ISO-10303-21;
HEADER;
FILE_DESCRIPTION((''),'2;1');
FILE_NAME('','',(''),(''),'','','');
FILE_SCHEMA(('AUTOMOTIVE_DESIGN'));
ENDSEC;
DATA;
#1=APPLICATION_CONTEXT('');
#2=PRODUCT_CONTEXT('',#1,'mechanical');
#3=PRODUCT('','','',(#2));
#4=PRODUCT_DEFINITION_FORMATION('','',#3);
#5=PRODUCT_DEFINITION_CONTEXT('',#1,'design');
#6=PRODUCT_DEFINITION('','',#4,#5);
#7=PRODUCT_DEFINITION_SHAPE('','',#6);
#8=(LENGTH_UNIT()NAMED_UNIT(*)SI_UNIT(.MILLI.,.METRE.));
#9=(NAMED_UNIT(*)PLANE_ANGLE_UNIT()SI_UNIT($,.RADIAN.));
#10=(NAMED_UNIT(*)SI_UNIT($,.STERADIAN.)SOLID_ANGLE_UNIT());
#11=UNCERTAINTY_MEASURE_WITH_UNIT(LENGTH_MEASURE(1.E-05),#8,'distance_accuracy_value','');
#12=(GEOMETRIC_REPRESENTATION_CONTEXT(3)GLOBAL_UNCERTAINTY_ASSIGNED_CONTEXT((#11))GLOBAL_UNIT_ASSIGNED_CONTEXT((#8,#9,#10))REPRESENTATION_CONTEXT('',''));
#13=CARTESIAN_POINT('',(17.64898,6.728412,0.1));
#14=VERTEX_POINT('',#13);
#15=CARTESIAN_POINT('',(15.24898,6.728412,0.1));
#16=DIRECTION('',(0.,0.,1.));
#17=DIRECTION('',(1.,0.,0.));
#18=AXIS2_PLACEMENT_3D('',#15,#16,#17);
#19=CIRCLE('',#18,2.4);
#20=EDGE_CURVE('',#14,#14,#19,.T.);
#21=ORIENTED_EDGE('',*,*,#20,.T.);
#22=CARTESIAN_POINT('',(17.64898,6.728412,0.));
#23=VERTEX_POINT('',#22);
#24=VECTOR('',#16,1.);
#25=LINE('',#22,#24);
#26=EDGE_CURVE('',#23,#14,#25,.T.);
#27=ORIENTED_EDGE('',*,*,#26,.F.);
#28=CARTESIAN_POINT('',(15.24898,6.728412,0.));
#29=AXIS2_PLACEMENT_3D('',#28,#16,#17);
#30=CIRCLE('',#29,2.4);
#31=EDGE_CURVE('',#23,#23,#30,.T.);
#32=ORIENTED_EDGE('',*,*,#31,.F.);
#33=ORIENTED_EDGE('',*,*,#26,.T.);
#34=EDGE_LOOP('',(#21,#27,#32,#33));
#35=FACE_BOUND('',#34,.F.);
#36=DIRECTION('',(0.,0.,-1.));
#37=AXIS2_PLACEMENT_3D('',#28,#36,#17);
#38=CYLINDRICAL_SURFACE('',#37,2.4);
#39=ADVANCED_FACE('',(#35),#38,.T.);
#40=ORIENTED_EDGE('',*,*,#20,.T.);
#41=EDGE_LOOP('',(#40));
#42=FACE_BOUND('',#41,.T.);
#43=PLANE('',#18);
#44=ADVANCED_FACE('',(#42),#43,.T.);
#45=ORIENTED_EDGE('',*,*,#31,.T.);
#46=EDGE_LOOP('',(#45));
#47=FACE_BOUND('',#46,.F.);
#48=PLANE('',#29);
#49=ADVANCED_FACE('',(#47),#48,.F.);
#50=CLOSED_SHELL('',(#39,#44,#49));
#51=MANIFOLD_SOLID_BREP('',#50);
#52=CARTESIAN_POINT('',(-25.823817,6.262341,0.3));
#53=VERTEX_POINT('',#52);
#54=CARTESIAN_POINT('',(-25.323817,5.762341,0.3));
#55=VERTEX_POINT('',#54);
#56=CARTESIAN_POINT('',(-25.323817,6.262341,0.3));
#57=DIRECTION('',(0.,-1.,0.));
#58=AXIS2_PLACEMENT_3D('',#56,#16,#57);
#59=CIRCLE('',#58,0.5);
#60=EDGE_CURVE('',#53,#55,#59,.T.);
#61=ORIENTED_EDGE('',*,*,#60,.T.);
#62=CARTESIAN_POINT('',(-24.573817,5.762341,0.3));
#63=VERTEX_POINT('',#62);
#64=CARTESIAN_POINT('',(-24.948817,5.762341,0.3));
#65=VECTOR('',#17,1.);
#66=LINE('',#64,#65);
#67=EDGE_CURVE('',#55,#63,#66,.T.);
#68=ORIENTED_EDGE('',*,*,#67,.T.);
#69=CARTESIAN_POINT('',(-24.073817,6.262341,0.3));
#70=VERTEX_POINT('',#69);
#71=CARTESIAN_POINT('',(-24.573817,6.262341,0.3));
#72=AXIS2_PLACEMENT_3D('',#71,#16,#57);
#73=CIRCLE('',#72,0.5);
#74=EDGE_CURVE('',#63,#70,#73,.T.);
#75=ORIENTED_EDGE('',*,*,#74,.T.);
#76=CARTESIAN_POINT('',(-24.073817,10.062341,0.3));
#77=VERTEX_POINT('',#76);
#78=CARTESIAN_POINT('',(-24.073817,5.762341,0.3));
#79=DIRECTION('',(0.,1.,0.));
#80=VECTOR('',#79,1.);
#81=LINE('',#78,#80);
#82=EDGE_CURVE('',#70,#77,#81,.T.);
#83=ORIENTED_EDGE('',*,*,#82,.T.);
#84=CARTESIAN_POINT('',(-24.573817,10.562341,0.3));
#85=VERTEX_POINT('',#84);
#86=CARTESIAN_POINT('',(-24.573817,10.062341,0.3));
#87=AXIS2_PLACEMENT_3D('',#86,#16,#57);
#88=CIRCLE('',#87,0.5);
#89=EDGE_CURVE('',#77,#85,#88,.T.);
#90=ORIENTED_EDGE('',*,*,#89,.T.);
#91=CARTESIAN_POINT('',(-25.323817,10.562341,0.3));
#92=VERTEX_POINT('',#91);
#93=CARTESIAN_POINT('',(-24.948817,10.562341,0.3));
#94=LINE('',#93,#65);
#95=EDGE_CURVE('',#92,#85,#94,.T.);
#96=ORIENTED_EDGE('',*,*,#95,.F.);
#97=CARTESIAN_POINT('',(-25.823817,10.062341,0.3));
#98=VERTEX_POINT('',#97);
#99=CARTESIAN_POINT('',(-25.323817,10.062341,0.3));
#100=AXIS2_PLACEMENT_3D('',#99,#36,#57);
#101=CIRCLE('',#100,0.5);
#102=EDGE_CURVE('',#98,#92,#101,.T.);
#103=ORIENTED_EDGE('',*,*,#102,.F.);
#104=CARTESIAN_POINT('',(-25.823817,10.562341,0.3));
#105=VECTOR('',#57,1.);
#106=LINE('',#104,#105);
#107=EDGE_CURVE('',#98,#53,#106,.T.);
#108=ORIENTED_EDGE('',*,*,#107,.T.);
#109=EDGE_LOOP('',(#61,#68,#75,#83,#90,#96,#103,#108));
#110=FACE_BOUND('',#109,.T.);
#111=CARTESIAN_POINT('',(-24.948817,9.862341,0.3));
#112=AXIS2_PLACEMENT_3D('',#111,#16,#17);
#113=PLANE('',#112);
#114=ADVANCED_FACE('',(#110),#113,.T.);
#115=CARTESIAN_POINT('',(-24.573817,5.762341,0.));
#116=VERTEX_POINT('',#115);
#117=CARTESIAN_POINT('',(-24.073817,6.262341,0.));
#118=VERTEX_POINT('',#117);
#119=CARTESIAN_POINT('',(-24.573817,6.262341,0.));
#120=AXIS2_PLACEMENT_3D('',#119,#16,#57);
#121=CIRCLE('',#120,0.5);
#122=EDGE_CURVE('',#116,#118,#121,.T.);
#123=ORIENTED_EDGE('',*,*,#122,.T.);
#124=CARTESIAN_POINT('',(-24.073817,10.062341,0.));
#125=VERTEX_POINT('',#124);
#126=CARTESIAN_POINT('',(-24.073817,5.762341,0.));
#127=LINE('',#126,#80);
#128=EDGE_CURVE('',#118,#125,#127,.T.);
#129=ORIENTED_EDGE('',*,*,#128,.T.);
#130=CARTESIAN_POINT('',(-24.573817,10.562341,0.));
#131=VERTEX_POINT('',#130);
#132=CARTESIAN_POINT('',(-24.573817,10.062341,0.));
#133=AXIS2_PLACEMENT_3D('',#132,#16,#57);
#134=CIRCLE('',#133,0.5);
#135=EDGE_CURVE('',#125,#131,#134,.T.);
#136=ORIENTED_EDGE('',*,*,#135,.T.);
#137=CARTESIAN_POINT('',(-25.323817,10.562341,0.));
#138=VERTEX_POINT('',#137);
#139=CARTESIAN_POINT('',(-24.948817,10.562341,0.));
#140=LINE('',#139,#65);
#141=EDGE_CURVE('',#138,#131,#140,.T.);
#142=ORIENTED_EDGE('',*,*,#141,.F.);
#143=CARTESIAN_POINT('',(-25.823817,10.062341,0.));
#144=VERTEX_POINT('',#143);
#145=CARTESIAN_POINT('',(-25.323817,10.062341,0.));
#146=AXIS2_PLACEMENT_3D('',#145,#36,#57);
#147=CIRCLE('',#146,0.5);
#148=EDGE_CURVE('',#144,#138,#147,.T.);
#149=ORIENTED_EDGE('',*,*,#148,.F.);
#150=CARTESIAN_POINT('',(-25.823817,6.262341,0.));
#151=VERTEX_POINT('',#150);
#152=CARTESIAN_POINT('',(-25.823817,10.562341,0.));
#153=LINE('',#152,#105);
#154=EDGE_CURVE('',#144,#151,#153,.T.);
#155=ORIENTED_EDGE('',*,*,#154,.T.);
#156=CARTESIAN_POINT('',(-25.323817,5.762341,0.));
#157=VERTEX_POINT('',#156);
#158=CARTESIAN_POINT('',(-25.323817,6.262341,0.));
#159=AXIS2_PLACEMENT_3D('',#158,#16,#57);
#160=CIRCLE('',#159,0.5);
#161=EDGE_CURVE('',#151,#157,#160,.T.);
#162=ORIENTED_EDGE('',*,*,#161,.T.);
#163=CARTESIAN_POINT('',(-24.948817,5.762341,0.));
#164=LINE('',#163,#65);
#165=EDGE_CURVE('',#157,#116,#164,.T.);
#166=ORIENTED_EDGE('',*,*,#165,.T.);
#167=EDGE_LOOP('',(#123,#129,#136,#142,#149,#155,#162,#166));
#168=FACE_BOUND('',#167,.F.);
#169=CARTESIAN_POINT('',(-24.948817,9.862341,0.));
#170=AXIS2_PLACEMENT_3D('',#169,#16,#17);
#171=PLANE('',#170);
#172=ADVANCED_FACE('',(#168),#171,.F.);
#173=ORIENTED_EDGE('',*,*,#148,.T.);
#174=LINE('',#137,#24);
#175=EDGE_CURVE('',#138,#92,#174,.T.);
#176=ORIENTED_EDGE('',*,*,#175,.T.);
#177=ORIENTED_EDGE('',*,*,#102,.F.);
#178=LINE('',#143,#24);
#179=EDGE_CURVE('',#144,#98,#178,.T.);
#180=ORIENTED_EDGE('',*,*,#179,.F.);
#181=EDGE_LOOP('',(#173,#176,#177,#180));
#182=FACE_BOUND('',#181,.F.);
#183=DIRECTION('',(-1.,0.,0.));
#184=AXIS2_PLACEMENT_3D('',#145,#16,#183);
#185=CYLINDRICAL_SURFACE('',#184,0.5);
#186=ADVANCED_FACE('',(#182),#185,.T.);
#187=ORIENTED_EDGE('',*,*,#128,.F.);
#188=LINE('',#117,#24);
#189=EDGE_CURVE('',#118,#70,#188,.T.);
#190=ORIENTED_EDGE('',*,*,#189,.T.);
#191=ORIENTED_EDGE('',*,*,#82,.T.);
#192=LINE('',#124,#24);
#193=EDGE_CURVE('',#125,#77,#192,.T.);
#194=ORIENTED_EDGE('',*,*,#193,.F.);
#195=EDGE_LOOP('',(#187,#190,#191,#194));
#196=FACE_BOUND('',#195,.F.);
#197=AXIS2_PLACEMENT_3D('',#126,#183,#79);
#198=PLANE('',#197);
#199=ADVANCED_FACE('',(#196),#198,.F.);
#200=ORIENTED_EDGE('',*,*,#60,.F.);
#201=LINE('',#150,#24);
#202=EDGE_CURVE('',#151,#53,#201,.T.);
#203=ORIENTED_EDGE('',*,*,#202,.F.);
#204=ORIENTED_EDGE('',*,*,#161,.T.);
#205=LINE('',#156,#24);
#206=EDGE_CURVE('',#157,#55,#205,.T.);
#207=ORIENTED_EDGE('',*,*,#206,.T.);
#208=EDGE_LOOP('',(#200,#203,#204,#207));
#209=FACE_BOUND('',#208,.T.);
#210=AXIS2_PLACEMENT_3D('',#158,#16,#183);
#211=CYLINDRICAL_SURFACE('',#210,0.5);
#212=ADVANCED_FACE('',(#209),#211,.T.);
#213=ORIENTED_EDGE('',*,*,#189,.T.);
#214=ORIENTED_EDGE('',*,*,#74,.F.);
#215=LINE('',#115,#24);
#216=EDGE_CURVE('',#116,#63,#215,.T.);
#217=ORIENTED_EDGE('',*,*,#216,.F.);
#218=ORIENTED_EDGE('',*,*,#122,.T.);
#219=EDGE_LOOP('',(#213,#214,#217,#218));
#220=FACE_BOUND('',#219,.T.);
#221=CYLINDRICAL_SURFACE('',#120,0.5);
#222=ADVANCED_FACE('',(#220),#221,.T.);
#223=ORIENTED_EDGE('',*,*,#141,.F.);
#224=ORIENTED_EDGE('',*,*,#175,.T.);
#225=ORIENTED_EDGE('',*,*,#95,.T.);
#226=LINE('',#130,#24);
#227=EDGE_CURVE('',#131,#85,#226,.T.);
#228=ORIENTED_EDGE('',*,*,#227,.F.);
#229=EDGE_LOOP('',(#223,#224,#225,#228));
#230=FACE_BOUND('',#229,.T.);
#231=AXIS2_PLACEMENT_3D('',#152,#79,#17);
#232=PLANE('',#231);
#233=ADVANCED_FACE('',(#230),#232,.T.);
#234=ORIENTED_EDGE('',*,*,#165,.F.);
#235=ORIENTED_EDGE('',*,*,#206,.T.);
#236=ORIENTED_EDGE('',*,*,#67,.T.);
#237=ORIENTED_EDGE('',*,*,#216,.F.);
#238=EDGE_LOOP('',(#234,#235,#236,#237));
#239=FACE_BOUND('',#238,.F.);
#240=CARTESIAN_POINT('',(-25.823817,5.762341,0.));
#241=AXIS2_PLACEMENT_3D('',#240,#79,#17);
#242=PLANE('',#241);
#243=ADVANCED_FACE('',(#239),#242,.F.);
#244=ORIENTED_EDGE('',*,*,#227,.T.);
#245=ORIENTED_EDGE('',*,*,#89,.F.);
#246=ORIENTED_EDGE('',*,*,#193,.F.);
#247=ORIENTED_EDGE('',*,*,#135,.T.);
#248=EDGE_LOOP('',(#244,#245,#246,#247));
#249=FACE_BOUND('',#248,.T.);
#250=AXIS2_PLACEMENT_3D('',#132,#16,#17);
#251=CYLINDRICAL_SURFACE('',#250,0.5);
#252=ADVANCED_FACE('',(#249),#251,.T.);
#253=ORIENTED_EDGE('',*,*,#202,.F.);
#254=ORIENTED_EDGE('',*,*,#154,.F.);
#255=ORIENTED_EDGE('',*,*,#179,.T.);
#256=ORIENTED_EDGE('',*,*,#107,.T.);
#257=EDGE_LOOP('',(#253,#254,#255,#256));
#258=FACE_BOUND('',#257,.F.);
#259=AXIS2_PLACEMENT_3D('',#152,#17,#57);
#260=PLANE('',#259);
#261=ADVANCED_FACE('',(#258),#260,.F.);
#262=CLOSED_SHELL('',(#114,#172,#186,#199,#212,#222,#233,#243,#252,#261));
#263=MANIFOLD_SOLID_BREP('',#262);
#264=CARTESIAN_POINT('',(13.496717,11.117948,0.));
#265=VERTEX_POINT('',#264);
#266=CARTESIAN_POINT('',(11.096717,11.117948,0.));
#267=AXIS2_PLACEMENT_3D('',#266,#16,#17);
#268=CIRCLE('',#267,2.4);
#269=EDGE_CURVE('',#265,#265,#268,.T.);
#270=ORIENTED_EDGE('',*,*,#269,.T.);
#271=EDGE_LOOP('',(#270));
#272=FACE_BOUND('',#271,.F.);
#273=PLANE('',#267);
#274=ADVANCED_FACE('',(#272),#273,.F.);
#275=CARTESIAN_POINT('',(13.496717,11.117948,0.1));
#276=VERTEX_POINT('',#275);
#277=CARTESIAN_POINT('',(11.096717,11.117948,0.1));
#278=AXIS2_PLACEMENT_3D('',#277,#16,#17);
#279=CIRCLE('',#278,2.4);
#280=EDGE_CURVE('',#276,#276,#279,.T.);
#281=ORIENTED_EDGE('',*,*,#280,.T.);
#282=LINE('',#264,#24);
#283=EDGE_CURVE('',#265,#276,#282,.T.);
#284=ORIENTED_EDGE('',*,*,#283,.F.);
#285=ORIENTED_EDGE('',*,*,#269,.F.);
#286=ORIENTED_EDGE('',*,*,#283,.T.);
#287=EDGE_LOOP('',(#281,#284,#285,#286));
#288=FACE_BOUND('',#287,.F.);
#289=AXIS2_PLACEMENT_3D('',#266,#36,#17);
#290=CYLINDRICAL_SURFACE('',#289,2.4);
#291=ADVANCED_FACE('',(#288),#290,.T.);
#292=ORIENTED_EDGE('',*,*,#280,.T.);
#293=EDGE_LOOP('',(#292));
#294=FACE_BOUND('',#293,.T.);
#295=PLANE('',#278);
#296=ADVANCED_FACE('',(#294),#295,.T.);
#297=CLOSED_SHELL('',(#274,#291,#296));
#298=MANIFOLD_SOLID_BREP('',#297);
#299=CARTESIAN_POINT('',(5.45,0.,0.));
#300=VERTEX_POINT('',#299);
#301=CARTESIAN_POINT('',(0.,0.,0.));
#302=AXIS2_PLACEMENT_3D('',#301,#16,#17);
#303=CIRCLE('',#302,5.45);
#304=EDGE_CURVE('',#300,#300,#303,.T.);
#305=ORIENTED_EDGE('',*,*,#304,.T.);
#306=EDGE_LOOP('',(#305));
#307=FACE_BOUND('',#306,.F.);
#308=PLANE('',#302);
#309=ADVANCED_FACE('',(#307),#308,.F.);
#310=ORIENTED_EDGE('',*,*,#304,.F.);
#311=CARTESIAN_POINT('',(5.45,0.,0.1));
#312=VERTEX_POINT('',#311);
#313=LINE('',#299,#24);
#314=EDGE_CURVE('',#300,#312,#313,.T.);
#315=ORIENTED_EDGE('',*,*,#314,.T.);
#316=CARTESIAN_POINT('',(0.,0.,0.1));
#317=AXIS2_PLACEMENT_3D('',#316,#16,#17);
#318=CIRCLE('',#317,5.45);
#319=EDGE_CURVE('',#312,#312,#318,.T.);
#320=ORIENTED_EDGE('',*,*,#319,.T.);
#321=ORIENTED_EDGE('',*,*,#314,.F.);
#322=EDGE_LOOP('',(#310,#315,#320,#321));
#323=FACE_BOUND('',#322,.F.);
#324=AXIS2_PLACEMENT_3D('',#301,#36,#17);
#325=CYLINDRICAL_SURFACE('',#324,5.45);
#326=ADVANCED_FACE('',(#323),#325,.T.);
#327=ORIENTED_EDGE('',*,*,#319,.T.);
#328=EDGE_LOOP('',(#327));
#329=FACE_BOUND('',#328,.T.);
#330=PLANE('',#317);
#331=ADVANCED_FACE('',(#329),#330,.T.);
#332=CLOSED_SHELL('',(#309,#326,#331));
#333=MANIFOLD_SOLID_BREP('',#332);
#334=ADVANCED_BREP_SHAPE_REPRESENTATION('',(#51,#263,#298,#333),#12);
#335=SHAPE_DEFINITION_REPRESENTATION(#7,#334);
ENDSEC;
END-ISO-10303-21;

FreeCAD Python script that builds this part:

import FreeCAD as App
import Part
import Sketcher

V = App.Vector
Q = App.Units.Quantity


def edges_at(feature, points):
    """Names of the edges that pass closest to the given points."""
    edges = feature.Shape.Edges
    near = lambda p: min(range(len(edges)), key=lambda i: edges[i].distToShape(Part.Vertex(*p))[0])
    return sorted({f"Edge{near(p) + 1}" for p in points})


def add_polygon(sketch, points):
    """Adds a closed chain of lines whose ends are joined by coincident constraints."""
    first, n = sketch.GeometryCount, len(points)
    for a, b in zip(points, points[1:] + points[:1]):
        sketch.addGeometry(Part.LineSegment(App.Vector(*a, 0), App.Vector(*b, 0)), False)
    for i in range(n):
        sketch.addConstraint(Sketcher.Constraint("Coincident", first + i, 2, first + (i + 1) % n, 1))

doc = App.newDocument("Part")
params = doc.addObject("Spreadsheet::Sheet", "Params")
for row, (alias, value) in enumerate([
    ("sketch1_diameter", "10.9 mm"),
    ("pad1_length", "0.1 mm"),
    ("sketch2_diameter", "4.8 mm"),
    ("pad2_length", "0.1 mm"),
    ("sketch3_height", "4.8 mm"),
    ("sketch3_width", "1.75 mm"),
    ("pad3_length", "0.3 mm"),
    ("fillet_radius", "0.5 mm"),
], start=1):
    params.set(f"A{row}", alias)
    params.set(f"B{row}", "=" + value)
    params.setAlias(f"B{row}", alias)

body = doc.addObject("PartDesign::Body", "Body")

# Sketch on XY plane
sketch1 = doc.addObject("Sketcher::SketchObject", "Sketch")
body.addObject(sketch1)
sketch1.AttachmentSupport = (doc.XY_Plane, [""])
sketch1.MapMode = "FlatFace"
sketch1.addGeometry(Part.Circle(V(0, 0, 0), V(0, 0, 1), 5), False)
sketch1.addConstraint(Sketcher.Constraint("Coincident", 0, 3, -1, 1))
sketch1.addConstraint(Sketcher.Constraint("Diameter", 0, Q("10.9 mm")))
sketch1.setExpression("Constraints[1]", "Params.sketch1_diameter")
pad1 = doc.addObject("PartDesign::Pad", "Pad")
body.addObject(pad1)
pad1.Profile = sketch1
pad1.setExpression("Length", "Params.pad1_length")
body2 = doc.addObject("PartDesign::Body", "Body001")
body2.AllowCompound = True

# Sketch on XY plane
sketch2 = doc.addObject("Sketcher::SketchObject", "Sketch001")
body2.addObject(sketch2)
sketch2.AttachmentSupport = (doc.getObject("XY_Plane001"), [""])
sketch2.MapMode = "FlatFace"
sketch2.addGeometry(Part.Circle(V(11.1, 11.1, 0), V(0, 0, 1), 2.4), False)
sketch2.addGeometry(Part.Circle(V(15.2, 6.7, 0), V(0, 0, 1), 2.4), False)
sketch2.addConstraint(Sketcher.Constraint("Equal", 0, 1))
sketch2.addConstraint(Sketcher.Constraint("Diameter", 0, Q("4.8 mm")))
sketch2.addConstraint(Sketcher.Constraint("DistanceX", -1, 1, 1, 3, Q("15.24898 mm")))
sketch2.addConstraint(Sketcher.Constraint("DistanceY", -1, 1, 1, 3, Q("6.728412 mm")))
sketch2.addConstraint(Sketcher.Constraint("DistanceX", -1, 1, 0, 3, Q("11.096717 mm")))
sketch2.addConstraint(Sketcher.Constraint("DistanceY", -1, 1, 0, 3, Q("11.117948 mm")))
sketch2.setExpression("Constraints[1]", "Params.sketch2_diameter")
pad2 = doc.addObject("PartDesign::Pad", "Pad001")
body2.addObject(pad2)
pad2.Profile = sketch2
pad2.setExpression("Length", "Params.pad2_length")
body3 = doc.addObject("PartDesign::Body", "Body002")

# Sketch on XY plane
sketch3 = doc.addObject("Sketcher::SketchObject", "Sketch002")
body3.addObject(sketch3)
sketch3.AttachmentSupport = (doc.getObject("XY_Plane002"), [""])
sketch3.MapMode = "FlatFace"
add_polygon(sketch3, [(-25.8, 10.6), (-25.8, 5.8), (-24.1, 5.8), (-24.1, 10.6)])  # lines 0-3
sketch3.addConstraint(Sketcher.Constraint("Vertical", 0))
sketch3.addConstraint(Sketcher.Constraint("Horizontal", 1))
sketch3.addConstraint(Sketcher.Constraint("Vertical", 2))
sketch3.addConstraint(Sketcher.Constraint("Horizontal", 3))
sketch3.addConstraint(Sketcher.Constraint("DistanceY", 0, 2, 0, 1, Q("4.8 mm")))
sketch3.addConstraint(Sketcher.Constraint("DistanceX", 1, 1, 1, 2, Q("1.75 mm")))
sketch3.addConstraint(Sketcher.Constraint("DistanceY", -1, 1, 0, 2, Q("5.762341 mm")))
sketch3.addConstraint(Sketcher.Constraint("DistanceX", 0, 2, -1, 1, Q("25.823817 mm")))
sketch3.setExpression("Constraints[8]", "Params.sketch3_height")
sketch3.setExpression("Constraints[9]", "Params.sketch3_width")
pad3 = doc.addObject("PartDesign::Pad", "Pad002")
body3.addObject(pad3)
pad3.Profile = sketch3
pad3.setExpression("Length", "Params.pad3_length")
doc.recompute()

fillet = doc.addObject("PartDesign::Fillet", "Fillet")
body3.addObject(fillet)
fillet.Base = (pad3, edges_at(pad3, [
    (-24.074, 10.562, 0.15),
    (-25.824, 10.562, 0.15),
    (-25.824, 5.762, 0.15),
    (-24.074, 5.762, 0.15),
]))
fillet.setExpression("Radius", "Params.fillet_radius")

doc.recompute()
